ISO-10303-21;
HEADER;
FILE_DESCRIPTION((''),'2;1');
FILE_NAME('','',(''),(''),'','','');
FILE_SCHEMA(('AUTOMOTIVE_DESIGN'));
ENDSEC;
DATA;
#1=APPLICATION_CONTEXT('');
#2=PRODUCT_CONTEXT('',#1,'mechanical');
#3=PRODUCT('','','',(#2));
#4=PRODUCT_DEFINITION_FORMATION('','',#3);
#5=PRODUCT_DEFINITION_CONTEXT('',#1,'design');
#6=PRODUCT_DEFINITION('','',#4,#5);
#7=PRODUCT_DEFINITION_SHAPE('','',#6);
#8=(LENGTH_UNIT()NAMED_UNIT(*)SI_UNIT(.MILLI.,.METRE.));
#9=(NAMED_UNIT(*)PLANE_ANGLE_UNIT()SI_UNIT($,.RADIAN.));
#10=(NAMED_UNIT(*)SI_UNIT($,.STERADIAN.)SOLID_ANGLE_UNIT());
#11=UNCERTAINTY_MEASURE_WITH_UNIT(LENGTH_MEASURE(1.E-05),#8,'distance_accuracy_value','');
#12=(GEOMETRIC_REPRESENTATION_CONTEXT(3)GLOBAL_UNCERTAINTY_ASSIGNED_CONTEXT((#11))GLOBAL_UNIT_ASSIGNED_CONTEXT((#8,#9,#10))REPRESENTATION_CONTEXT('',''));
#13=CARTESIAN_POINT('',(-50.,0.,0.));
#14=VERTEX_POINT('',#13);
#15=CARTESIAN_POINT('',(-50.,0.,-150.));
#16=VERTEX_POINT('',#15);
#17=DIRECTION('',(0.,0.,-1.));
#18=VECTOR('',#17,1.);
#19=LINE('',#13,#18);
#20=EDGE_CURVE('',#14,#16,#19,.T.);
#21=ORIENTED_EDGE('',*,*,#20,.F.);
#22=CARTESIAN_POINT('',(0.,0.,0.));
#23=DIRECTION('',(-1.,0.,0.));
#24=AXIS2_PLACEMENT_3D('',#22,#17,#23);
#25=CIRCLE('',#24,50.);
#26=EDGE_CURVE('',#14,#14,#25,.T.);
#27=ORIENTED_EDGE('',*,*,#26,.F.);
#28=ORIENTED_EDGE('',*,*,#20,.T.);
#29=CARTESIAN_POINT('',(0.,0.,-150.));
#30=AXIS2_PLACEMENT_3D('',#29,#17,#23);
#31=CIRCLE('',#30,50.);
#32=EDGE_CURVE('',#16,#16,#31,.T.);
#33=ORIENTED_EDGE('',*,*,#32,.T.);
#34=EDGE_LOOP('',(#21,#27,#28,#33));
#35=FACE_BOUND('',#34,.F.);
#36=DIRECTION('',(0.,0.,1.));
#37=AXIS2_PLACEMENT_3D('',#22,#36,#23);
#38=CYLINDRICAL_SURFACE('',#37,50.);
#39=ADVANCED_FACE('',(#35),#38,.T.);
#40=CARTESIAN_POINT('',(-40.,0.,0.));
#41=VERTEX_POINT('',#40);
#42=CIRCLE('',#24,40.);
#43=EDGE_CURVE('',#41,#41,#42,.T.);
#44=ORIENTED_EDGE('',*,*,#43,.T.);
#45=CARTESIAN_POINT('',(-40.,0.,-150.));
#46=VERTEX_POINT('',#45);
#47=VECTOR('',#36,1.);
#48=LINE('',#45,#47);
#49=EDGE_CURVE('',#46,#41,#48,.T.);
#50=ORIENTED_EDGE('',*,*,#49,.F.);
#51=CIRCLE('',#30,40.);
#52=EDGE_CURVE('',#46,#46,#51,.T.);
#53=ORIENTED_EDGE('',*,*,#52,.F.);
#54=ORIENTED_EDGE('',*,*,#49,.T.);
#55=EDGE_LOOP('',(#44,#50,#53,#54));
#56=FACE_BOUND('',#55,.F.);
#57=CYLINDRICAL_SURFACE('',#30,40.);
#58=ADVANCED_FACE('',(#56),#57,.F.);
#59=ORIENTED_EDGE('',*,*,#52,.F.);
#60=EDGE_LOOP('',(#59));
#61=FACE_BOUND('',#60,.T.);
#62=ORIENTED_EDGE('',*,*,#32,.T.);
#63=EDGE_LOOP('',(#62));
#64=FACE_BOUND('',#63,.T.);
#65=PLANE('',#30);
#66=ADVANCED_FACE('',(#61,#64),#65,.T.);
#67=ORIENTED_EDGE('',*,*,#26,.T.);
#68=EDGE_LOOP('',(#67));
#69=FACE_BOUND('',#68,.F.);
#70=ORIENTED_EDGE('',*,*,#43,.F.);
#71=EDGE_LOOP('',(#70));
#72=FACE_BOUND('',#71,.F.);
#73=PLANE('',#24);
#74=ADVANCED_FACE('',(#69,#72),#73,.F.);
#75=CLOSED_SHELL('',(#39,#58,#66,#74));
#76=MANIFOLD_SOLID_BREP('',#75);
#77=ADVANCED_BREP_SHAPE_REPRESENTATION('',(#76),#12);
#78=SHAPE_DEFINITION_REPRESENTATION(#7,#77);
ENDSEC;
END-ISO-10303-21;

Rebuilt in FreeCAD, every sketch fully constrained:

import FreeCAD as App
import Part
import Sketcher
from FreeCAD import Vector
Q = App.Units.Quantity

doc = App.newDocument("Part")
body = doc.addObject("PartDesign::Body", "Body")

# Sketch on XY plane
sketch1 = body.newObject("Sketcher::SketchObject", "Sketch")
sketch1.AttachmentSupport = (doc.getObject("XY_Plane"), [""])
sketch1.MapMode = "FlatFace"
sketch1.addGeometry(Part.Circle(Vector(0, 0, 0), Vector(0, 0, 1), 50), False)
sketch1.addConstraint(Sketcher.Constraint("Coincident", 0, 3, -1, 1))
sketch1.addConstraint(Sketcher.Constraint("Diameter", 0, Q("3.937 in")))
pad1 = body.newObject("PartDesign::Pad", "Pad")
pad1.Profile = sketch1
pad1.Length = Q("5.9055118 in")
pad1.Reversed = True

# Sketch on XY plane
sketch2 = body.newObject("Sketcher::SketchObject", "Sketch001")
sketch2.AttachmentSupport = (doc.getObject("XY_Plane"), [""])
sketch2.MapMode = "FlatFace"
sketch2.AttachmentOffset = App.Placement(Vector(0, 0, -5.9055118 * 25.4), App.Rotation())
sketch2.addGeometry(Part.Circle(Vector(0, 0, 0), Vector(0, 0, 1), 40), False)
sketch2.addConstraint(Sketcher.Constraint("Coincident", 0, 3, -1, 1))
sketch2.addConstraint(Sketcher.Constraint("Diameter", 0, Q("3.1496 in")))
pocket1 = body.newObject("PartDesign::Pocket", "Pocket")
pocket1.Profile = sketch2
pocket1.Length = Q("5.9055118 in")
pocket1.Reversed = True

doc.recompute()
